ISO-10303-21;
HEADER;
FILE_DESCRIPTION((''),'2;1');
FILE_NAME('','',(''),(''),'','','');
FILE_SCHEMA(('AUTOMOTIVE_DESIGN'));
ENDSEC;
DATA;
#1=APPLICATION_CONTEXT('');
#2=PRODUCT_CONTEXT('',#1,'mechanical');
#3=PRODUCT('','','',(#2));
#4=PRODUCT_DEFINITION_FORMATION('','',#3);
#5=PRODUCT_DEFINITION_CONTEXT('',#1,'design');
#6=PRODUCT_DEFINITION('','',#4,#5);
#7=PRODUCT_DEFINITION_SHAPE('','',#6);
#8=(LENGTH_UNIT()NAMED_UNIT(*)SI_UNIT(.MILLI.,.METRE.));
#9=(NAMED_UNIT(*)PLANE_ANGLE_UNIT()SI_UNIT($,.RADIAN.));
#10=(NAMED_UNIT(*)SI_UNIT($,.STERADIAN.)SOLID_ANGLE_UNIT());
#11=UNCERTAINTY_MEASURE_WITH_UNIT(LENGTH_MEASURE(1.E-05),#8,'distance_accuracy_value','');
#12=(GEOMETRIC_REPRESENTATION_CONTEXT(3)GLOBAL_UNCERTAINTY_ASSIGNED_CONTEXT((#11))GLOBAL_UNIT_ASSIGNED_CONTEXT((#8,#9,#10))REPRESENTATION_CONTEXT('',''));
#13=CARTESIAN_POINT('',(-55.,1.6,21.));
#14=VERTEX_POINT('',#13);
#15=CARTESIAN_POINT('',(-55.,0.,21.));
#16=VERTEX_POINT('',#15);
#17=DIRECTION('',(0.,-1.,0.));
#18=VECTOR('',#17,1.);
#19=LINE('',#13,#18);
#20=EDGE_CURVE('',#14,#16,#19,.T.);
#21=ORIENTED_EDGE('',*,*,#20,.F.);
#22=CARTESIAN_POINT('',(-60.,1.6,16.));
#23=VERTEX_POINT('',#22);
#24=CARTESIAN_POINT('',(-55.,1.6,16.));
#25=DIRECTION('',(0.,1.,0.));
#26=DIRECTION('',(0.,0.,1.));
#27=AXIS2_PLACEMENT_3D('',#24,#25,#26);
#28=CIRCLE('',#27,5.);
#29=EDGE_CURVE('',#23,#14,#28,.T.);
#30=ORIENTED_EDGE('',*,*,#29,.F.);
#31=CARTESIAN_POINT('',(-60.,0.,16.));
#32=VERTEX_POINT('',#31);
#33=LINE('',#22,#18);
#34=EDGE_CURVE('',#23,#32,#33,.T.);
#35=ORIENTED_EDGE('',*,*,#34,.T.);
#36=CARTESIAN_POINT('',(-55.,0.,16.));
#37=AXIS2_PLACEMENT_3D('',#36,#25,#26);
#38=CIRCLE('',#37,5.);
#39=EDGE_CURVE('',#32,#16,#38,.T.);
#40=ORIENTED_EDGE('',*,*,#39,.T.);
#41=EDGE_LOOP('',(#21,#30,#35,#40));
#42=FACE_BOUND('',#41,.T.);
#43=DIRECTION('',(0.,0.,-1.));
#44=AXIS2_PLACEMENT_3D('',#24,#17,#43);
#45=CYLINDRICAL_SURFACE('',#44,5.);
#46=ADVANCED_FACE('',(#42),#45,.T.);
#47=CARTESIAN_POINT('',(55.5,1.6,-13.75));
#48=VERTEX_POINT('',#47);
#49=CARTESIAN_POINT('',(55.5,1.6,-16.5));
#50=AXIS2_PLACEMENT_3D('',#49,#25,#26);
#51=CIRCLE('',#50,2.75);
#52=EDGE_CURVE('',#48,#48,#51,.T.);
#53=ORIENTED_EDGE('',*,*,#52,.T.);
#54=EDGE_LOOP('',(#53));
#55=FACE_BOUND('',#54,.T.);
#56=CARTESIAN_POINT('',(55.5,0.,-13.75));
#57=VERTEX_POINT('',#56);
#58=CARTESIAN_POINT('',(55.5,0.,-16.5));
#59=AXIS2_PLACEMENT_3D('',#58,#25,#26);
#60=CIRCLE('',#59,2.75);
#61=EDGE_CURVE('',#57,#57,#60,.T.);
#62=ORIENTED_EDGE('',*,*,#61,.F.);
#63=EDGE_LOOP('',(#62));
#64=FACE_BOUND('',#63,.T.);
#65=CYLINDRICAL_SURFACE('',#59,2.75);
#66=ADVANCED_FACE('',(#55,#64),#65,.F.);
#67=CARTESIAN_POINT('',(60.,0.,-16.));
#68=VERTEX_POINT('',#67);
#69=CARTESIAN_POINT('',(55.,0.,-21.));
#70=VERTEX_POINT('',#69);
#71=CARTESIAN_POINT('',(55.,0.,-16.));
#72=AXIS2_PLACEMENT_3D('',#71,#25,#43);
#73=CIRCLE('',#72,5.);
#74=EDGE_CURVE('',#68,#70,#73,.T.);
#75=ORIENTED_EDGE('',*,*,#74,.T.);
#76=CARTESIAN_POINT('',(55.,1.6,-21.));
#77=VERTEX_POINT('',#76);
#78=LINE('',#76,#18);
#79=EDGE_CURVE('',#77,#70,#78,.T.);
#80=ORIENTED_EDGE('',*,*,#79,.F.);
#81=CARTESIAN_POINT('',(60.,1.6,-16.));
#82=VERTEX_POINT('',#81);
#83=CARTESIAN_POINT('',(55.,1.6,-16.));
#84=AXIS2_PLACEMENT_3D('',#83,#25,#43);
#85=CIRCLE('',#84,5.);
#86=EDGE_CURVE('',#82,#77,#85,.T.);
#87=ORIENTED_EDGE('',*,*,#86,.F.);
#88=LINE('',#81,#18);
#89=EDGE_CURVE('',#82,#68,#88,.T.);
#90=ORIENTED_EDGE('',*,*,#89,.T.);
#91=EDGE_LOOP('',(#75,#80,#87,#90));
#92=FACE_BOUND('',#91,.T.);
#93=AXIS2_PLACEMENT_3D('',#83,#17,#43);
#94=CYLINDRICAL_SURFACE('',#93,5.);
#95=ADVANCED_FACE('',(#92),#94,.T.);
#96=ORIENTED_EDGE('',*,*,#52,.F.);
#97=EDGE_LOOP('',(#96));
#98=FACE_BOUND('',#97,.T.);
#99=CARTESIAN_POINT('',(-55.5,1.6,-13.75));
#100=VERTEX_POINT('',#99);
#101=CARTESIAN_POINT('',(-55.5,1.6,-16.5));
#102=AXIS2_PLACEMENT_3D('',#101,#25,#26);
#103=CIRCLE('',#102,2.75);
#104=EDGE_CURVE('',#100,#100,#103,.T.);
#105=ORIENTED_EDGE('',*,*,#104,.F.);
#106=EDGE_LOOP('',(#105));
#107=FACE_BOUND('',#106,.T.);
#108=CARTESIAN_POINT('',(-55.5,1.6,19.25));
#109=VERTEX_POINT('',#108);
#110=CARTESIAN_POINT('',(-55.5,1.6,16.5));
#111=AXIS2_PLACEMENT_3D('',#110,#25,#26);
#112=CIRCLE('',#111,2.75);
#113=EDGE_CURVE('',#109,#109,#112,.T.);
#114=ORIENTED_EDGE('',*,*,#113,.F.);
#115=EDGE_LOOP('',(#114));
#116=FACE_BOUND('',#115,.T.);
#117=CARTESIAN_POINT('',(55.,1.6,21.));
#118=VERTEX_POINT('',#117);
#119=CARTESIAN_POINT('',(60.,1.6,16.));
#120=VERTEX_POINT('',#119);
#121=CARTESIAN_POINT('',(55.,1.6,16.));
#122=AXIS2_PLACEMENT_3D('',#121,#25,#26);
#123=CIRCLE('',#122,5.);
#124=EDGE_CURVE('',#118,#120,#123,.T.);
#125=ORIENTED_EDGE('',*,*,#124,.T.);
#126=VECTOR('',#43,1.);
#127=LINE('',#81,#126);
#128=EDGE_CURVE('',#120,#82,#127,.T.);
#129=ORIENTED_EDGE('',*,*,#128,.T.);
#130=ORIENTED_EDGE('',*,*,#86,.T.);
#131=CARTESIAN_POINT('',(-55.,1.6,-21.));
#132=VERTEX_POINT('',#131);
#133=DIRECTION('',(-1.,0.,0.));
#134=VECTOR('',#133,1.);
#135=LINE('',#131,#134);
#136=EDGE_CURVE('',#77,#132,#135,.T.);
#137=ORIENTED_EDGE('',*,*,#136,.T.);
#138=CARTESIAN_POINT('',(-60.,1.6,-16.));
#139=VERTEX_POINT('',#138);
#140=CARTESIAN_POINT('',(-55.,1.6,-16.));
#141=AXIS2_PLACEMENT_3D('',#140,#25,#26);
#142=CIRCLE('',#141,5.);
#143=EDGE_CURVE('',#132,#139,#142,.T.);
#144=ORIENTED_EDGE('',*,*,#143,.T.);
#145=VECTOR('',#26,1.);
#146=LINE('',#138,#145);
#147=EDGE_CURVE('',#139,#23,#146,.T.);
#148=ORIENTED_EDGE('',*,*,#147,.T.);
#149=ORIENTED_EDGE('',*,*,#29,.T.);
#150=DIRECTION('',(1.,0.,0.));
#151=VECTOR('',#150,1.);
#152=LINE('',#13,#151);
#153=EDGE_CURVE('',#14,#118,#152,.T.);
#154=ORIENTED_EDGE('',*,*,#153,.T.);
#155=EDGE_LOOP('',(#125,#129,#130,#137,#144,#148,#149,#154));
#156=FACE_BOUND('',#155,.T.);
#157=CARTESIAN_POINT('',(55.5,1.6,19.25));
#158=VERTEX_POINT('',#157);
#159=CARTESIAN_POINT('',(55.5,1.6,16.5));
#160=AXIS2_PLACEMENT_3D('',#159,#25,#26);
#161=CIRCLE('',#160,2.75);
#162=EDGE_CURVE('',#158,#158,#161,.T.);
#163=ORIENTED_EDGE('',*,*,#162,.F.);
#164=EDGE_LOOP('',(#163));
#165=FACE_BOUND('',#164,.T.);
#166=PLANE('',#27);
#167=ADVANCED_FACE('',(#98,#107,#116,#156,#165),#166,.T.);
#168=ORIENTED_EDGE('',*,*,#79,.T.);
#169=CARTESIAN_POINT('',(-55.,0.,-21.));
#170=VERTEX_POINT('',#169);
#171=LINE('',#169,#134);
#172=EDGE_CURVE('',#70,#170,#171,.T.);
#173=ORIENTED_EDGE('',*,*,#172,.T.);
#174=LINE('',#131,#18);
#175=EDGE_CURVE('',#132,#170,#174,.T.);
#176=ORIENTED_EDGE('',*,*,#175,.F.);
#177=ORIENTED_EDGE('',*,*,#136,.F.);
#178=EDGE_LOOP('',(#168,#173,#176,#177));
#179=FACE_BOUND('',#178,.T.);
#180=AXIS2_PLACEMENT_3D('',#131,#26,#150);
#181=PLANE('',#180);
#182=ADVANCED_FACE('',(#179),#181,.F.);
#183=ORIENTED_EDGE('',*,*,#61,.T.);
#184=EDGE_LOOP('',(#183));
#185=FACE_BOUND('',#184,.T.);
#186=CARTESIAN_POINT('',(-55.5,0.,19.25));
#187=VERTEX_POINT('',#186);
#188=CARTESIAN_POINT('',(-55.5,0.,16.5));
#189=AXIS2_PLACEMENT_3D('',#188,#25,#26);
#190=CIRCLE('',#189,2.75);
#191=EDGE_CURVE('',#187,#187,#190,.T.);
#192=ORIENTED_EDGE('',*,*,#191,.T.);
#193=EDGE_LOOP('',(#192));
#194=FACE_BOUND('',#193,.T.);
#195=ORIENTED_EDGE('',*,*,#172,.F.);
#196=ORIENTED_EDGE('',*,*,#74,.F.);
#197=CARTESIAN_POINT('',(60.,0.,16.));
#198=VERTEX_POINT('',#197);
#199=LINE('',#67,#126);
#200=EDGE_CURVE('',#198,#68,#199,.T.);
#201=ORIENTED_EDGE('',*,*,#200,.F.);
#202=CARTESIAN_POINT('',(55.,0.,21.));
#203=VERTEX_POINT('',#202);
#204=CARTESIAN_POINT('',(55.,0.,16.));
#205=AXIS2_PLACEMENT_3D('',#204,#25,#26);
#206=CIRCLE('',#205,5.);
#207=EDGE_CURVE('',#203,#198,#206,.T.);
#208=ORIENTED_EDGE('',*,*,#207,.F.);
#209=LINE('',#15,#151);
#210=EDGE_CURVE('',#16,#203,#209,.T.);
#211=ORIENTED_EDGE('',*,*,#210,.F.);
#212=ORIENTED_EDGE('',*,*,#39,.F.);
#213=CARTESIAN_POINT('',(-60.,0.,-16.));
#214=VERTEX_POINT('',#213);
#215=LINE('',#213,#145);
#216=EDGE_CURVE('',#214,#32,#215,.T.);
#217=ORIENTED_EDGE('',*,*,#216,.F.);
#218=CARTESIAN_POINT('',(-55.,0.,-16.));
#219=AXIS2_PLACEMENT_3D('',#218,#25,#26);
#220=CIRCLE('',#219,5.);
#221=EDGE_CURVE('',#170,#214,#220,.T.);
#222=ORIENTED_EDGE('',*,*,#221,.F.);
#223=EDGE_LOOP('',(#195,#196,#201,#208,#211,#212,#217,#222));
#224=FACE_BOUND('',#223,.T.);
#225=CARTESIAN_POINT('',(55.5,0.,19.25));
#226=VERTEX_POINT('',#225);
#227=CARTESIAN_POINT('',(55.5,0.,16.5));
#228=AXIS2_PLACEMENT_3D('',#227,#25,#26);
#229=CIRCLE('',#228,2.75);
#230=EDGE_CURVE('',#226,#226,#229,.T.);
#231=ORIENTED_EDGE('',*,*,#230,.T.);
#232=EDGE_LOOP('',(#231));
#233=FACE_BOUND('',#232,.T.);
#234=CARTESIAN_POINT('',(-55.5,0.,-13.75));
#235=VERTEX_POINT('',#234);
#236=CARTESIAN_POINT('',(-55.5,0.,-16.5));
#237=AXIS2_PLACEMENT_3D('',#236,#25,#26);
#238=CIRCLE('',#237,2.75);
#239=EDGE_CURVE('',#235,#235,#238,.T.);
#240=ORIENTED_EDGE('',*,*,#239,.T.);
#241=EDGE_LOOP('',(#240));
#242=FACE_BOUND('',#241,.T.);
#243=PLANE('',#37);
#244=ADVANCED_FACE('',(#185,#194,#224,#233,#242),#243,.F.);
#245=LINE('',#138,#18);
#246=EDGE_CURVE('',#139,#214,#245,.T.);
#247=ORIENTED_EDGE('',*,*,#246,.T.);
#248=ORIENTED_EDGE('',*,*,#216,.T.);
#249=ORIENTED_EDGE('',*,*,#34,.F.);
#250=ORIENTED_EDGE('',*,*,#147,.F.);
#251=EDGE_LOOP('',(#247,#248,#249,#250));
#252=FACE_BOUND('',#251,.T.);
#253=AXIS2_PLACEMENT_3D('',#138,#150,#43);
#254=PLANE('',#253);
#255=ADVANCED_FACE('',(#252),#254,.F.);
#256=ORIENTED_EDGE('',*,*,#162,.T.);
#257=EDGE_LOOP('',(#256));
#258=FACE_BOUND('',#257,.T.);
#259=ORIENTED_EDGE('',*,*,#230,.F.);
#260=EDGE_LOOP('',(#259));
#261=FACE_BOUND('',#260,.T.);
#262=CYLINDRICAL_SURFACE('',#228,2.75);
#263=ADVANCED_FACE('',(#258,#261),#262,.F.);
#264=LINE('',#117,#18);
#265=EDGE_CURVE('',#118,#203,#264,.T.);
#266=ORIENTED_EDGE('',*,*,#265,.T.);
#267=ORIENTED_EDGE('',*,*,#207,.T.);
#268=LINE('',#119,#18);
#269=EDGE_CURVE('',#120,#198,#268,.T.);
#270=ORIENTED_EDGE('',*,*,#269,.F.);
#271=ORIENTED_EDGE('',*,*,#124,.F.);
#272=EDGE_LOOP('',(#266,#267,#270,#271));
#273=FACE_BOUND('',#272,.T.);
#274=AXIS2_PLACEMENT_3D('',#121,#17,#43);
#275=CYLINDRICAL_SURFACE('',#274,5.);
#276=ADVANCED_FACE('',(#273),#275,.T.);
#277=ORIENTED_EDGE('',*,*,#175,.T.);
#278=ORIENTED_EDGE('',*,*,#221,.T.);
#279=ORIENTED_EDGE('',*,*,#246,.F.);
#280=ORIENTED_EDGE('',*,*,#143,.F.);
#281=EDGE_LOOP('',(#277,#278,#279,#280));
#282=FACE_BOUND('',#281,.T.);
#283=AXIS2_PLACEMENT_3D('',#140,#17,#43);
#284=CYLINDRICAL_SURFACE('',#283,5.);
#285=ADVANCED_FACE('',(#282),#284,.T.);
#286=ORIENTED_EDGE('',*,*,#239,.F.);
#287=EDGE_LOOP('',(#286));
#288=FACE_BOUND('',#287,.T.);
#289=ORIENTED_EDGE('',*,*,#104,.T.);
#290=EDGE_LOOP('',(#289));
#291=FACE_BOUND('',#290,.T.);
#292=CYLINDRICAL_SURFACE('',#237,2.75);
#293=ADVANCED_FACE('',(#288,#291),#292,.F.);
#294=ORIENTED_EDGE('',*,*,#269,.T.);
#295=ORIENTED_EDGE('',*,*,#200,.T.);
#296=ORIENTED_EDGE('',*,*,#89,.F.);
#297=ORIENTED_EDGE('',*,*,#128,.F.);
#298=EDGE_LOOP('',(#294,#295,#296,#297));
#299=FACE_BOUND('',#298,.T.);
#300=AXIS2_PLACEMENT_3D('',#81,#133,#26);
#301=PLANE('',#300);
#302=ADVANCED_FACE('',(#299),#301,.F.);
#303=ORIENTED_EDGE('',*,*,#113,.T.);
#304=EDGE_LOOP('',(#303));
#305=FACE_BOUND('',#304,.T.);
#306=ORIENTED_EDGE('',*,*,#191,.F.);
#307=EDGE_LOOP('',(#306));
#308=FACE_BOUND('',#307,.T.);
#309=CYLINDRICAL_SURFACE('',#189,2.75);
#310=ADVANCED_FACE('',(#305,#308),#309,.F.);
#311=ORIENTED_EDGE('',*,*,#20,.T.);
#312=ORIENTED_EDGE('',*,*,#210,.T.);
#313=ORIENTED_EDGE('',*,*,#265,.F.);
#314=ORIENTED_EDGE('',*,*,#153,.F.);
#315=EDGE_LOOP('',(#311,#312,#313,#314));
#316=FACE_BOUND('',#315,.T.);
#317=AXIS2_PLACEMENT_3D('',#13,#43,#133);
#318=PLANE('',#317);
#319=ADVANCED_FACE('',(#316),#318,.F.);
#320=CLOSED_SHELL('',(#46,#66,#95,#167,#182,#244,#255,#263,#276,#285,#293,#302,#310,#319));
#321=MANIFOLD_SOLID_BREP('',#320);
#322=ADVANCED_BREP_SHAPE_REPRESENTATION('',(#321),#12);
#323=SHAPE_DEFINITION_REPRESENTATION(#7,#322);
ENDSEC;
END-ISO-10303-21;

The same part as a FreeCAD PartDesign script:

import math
import FreeCAD as App
import Part
import Sketcher
from FreeCAD import Vector
Q = App.Units.Quantity

doc = App.newDocument("Part")
body = doc.addObject("PartDesign::Body", "Body")

# Sketch on XZ plane
sketch1 = doc.addObject("Sketcher::SketchObject", "Sketch")
body.addObject(sketch1)
sketch1.AttachmentSupport = (doc.XZ_Plane, [""])
sketch1.MapMode = "FlatFace"
sketch1.addGeometry([
    Part.LineSegment(Vector(55, -21, 0), Vector(-55, -21, 0)),  # 0
    Part.ArcOfCircle(Part.Circle(Vector(-55, -16, 0), Vector(0, 0, 1), 5), math.radians(180), math.radians(270)),  # 1
    Part.LineSegment(Vector(-60, -16, 0), Vector(-60, 16, 0)),  # 2
    Part.ArcOfCircle(Part.Circle(Vector(-55, 16, 0), Vector(0, 0, 1), 5), math.radians(90), math.radians(180)),  # 3
    Part.LineSegment(Vector(-55, 21, 0), Vector(55, 21, 0)),  # 4
    Part.ArcOfCircle(Part.Circle(Vector(55, 16, 0), Vector(0, 0, 1), 5), math.radians(0), math.radians(90)),  # 5
    Part.LineSegment(Vector(60, 16, 0), Vector(60, -16, 0)),  # 6
    Part.ArcOfCircle(Part.Circle(Vector(55, -16, 0), Vector(0, 0, 1), 5), math.radians(-90), math.radians(0)),  # 7
], False)
sketch1.addConstraint([
    Sketcher.Constraint("Tangent", 0, 2, 1, 2),
    Sketcher.Constraint("Tangent", 1, 1, 2, 1),
    Sketcher.Constraint("Tangent", 2, 2, 3, 2),
    Sketcher.Constraint("Tangent", 3, 1, 4, 1),
    Sketcher.Constraint("Tangent", 4, 2, 5, 2),
    Sketcher.Constraint("Tangent", 5, 1, 6, 1),
    Sketcher.Constraint("Tangent", 6, 2, 7, 2),
    Sketcher.Constraint("Tangent", 7, 1, 0, 1),
    Sketcher.Constraint("Horizontal", 0),
    Sketcher.Constraint("Vertical", 2),
    Sketcher.Constraint("Horizontal", 4),
    Sketcher.Constraint("Vertical", 6),
    Sketcher.Constraint("Equal", 1, 3),
    Sketcher.Constraint("Equal", 3, 5),
    Sketcher.Constraint("Equal", 5, 7),
    Sketcher.Constraint("Symmetric", 1, 3, 5, 3, -1, 1),
    Sketcher.Constraint("Radius", 1, Q("5 mm")),
    Sketcher.Constraint("DistanceX", 0, 2, 0, 1, Q("110 mm")),
    Sketcher.Constraint("DistanceY", 2, 1, 2, 2, Q("32 mm")),
])
pad1 = doc.addObject("PartDesign::Pad", "Pad")
body.addObject(pad1)
pad1.Profile = sketch1
pad1.Length = 1.6
pad1.Reversed = True

# Sketch on XZ plane
sketch2 = doc.addObject("Sketcher::SketchObject", "Sketch001")
body.addObject(sketch2)
sketch2.AttachmentSupport = (doc.XZ_Plane, [""])
sketch2.MapMode = "FlatFace"
sketch2.AttachmentOffset = App.Placement(Vector(0, 0, -1.6), App.Rotation())
sketch2.addGeometry([
    Part.Circle(Vector(-55.5, -16.5, 0), Vector(0, 0, 1), 2.8),
    Part.Circle(Vector(-55.5, 16.5, 0), Vector(0, 0, 1), 2.8),
    Part.Circle(Vector(55.5, -16.5, 0), Vector(0, 0, 1), 2.8),
    Part.Circle(Vector(55.5, 16.5, 0), Vector(0, 0, 1), 2.8),
], False)
sketch2.addConstraint([
    Sketcher.Constraint("Equal", 0, 1),
    Sketcher.Constraint("Equal", 1, 2),
    Sketcher.Constraint("Equal", 2, 3),
    Sketcher.Constraint("Symmetric", 1, 3, 2, 3, -1, 1),
    Sketcher.Constraint("Symmetric", 0, 3, 3, 3, -1, 1),
    Sketcher.Constraint("Symmetric", 0, 3, 2, 3, -2),
    Sketcher.Constraint("Diameter", 0, Q("5.5 mm")),
    Sketcher.Constraint("DistanceY", 0, 3, 1, 3, Q("33 mm")),
    Sketcher.Constraint("DistanceX", 0, 3, 2, 3, Q("111 mm")),
])
pocket1 = doc.addObject("PartDesign::Pocket", "Pocket")
body.addObject(pocket1)
pocket1.Profile = sketch2
pocket1.Type = "ThroughAll"
pocket1.Reversed = True

doc.recompute()
